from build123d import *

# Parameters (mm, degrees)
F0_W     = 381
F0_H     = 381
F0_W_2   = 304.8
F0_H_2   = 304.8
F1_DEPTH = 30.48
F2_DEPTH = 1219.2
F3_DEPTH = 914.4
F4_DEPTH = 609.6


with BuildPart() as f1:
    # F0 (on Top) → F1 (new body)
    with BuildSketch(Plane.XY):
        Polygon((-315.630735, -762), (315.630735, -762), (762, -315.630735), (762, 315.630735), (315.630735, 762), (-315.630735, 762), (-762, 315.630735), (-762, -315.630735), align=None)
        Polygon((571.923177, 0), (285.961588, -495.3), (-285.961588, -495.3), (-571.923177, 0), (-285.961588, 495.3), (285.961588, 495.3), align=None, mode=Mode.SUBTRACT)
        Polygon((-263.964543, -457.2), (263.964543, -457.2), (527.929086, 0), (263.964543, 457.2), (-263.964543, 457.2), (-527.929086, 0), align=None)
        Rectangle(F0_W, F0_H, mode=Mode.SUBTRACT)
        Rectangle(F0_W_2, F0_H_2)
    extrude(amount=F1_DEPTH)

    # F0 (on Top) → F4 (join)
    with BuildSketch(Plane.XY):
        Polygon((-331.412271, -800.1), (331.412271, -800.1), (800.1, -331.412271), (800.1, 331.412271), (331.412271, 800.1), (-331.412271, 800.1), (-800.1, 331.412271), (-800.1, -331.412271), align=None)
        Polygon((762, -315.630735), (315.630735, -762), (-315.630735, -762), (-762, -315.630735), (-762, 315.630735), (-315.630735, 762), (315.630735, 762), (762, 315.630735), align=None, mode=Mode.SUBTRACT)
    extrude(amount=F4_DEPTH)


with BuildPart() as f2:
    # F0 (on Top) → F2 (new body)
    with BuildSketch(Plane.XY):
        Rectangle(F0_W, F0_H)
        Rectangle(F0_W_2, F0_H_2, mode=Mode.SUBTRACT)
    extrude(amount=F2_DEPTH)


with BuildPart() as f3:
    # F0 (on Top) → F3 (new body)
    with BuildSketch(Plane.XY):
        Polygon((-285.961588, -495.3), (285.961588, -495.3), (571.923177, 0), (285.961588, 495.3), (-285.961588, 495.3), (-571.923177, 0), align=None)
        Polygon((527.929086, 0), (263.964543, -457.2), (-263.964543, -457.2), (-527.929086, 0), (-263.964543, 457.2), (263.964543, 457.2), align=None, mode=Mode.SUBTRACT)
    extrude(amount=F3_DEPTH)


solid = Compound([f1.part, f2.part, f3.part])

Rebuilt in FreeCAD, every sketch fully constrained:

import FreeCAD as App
import Part
import Sketcher

V = App.Vector
Q = App.Units.Quantity

doc = App.newDocument("Part")
params = doc.addObject("Spreadsheet::Sheet", "Params")
for row, (alias, value) in enumerate([
    ("sketch1_width", "15 in"),
    ("sketch1_width2", "12 in"),
    ("pad1_length", "1.2 in"),
    ("pad2_length", "24 in"),
    ("sketch3_width", "15 in"),
    ("sketch3_width2", "12 in"),
    ("pad3_length", "48 in"),
    ("pad4_length", "36 in"),
], start=1):
    params.set(f"A{row}", alias)
    params.set(f"B{row}", "=" + value)
    params.setAlias(f"B{row}", alias)

body = doc.addObject("PartDesign::Body", "Body")
body.AllowCompound = True

sketch1 = doc.addObject("Sketcher::SketchObject", "Sketch")
body.addObject(sketch1)
sketch1.AttachmentSupport = (doc.XY_Plane, [""])
sketch1.MapMode = "FlatFace"
sketch1.addGeometry(Part.LineSegment(V(-316, -762, 0), V(316, -762, 0)), False)
sketch1.addGeometry(Part.LineSegment(V(316, -762, 0), V(762, -316, 0)), False)
sketch1.addGeometry(Part.LineSegment(V(762, -316, 0), V(762, 316, 0)), False)
sketch1.addGeometry(Part.LineSegment(V(762, 316, 0), V(316, 762, 0)), False)
sketch1.addGeometry(Part.LineSegment(V(316, 762, 0), V(-316, 762, 0)), False)
sketch1.addGeometry(Part.LineSegment(V(-316, 762, 0), V(-762, 316, 0)), False)
sketch1.addGeometry(Part.LineSegment(V(-762, 316, 0), V(-762, -316, 0)), False)
sketch1.addGeometry(Part.LineSegment(V(-762, -316, 0), V(-316, -762, 0)), False)
sketch1.addGeometry(Part.LineSegment(V(286, 495, 0), V(572, 0, 0)), False)
sketch1.addGeometry(Part.LineSegment(V(572, 0, 0), V(286, -495, 0)), False)
sketch1.addGeometry(Part.LineSegment(V(286, -495, 0), V(-286, -495, 0)), False)
sketch1.addGeometry(Part.LineSegment(V(-286, -495, 0), V(-572, 0, 0)), False)
sketch1.addGeometry(Part.LineSegment(V(-572, 0, 0), V(-286, 495, 0)), False)
sketch1.addGeometry(Part.LineSegment(V(-286, 495, 0), V(286, 495, 0)), False)
sketch1.addGeometry(Part.LineSegment(V(-264, -457, 0), V(264, -457, 0)), False)
sketch1.addGeometry(Part.LineSegment(V(264, -457, 0), V(528, 0, 0)), False)
sketch1.addGeometry(Part.LineSegment(V(528, 0, 0), V(264, 457, 0)), False)
sketch1.addGeometry(Part.LineSegment(V(264, 457, 0), V(-264, 457, 0)), False)
sketch1.addGeometry(Part.LineSegment(V(-264, 457, 0), V(-528, 0, 0)), False)
sketch1.addGeometry(Part.LineSegment(V(-528, 0, 0), V(-264, -457, 0)), False)
sketch1.addGeometry(Part.LineSegment(V(190, -190, 0), V(-190, -190, 0)), False)
sketch1.addGeometry(Part.LineSegment(V(-190, -190, 0), V(-190, 190, 0)), False)
sketch1.addGeometry(Part.LineSegment(V(-190, 190, 0), V(190, 190, 0)), False)
sketch1.addGeometry(Part.LineSegment(V(190, 190, 0), V(190, -190, 0)), False)
sketch1.addGeometry(Part.LineSegment(V(-152, 152, 0), V(-152, -152, 0)), False)
sketch1.addGeometry(Part.LineSegment(V(-152, -152, 0), V(152, -152, 0)), False)
sketch1.addGeometry(Part.LineSegment(V(152, -152, 0), V(152, 152, 0)), False)
sketch1.addGeometry(Part.LineSegment(V(152, 152, 0), V(-152, 152, 0)), False)
sketch1.addConstraint(Sketcher.Constraint("Coincident", 0, 2, 1, 1))
sketch1.addConstraint(Sketcher.Constraint("Coincident", 1, 2, 2, 1))
sketch1.addConstraint(Sketcher.Constraint("Coincident", 2, 2, 3, 1))
sketch1.addConstraint(Sketcher.Constraint("Coincident", 3, 2, 4, 1))
sketch1.addConstraint(Sketcher.Constraint("Coincident", 4, 2, 5, 1))
sketch1.addConstraint(Sketcher.Constraint("Coincident", 5, 2, 6, 1))
sketch1.addConstraint(Sketcher.Constraint("Coincident", 6, 2, 7, 1))
sketch1.addConstraint(Sketcher.Constraint("Coincident", 7, 2, 0, 1))
sketch1.addConstraint(Sketcher.Constraint("Coincident", 8, 2, 9, 1))
sketch1.addConstraint(Sketcher.Constraint("Coincident", 9, 2, 10, 1))
sketch1.addConstraint(Sketcher.Constraint("Coincident", 10, 2, 11, 1))
sketch1.addConstraint(Sketcher.Constraint("Coincident", 11, 2, 12, 1))
sketch1.addConstraint(Sketcher.Constraint("Coincident", 12, 2, 13, 1))
sketch1.addConstraint(Sketcher.Constraint("Coincident", 13, 2, 8, 1))
sketch1.addConstraint(Sketcher.Constraint("Coincident", 14, 2, 15, 1))
sketch1.addConstraint(Sketcher.Constraint("Coincident", 15, 2, 16, 1))
sketch1.addConstraint(Sketcher.Constraint("Coincident", 16, 2, 17, 1))
sketch1.addConstraint(Sketcher.Constraint("Coincident", 17, 2, 18, 1))
sketch1.addConstraint(Sketcher.Constraint("Coincident", 18, 2, 19, 1))
sketch1.addConstraint(Sketcher.Constraint("Coincident", 19, 2, 14, 1))
sketch1.addConstraint(Sketcher.Constraint("Coincident", 20, 2, 21, 1))
sketch1.addConstraint(Sketcher.Constraint("Coincident", 21, 2, 22, 1))
sketch1.addConstraint(Sketcher.Constraint("Coincident", 22, 2, 23, 1))
sketch1.addConstraint(Sketcher.Constraint("Coincident", 23, 2, 20, 1))
sketch1.addConstraint(Sketcher.Constraint("Coincident", 24, 2, 25, 1))
sketch1.addConstraint(Sketcher.Constraint("Coincident", 25, 2, 26, 1))
sketch1.addConstraint(Sketcher.Constraint("Coincident", 26, 2, 27, 1))
sketch1.addConstraint(Sketcher.Constraint("Coincident", 27, 2, 24, 1))
sketch1.addConstraint(Sketcher.Constraint("Horizontal", 0))
sketch1.addConstraint(Sketcher.Constraint("Vertical", 2))
sketch1.addConstraint(Sketcher.Constraint("Horizontal", 4))
sketch1.addConstraint(Sketcher.Constraint("Vertical", 6))
sketch1.addConstraint(Sketcher.Constraint("Horizontal", 10))
sketch1.addConstraint(Sketcher.Constraint("Horizontal", 13))
sketch1.addConstraint(Sketcher.Constraint("Horizontal", 14))
sketch1.addConstraint(Sketcher.Constraint("Horizontal", 17))
sketch1.addConstraint(Sketcher.Constraint("Horizontal", 20))
sketch1.addConstraint(Sketcher.Constraint("Vertical", 21))
sketch1.addConstraint(Sketcher.Constraint("Horizontal", 22))
sketch1.addConstraint(Sketcher.Constraint("Vertical", 23))
sketch1.addConstraint(Sketcher.Constraint("Vertical", 24))
sketch1.addConstraint(Sketcher.Constraint("Horizontal", 25))
sketch1.addConstraint(Sketcher.Constraint("Vertical", 26))
sketch1.addConstraint(Sketcher.Constraint("Horizontal", 27))
sketch1.addConstraint(Sketcher.Constraint("Symmetric", 0, 2, 4, 2, -1, 1))
sketch1.addConstraint(Sketcher.Constraint("Symmetric", 1, 2, 5, 2, -1, 1))
sketch1.addConstraint(Sketcher.Constraint("Symmetric", 8, 2, 11, 2, -1, 1))
sketch1.addConstraint(Sketcher.Constraint("Symmetric", 9, 2, 12, 2, -1, 1))
sketch1.addConstraint(Sketcher.Constraint("Symmetric", 14, 2, 17, 2, -1, 1))
sketch1.addConstraint(Sketcher.Constraint("Symmetric", 15, 2, 18, 2, -1, 1))
sketch1.addConstraint(Sketcher.Constraint("Symmetric", 20, 2, 22, 2, -1, 1))
sketch1.addConstraint(Sketcher.Constraint("Symmetric", 24, 2, 26, 2, -1, 1))
sketch1.addConstraint(Sketcher.Constraint("PointOnObject", 8, 2, -1))
sketch1.addConstraint(Sketcher.Constraint("PointOnObject", 15, 2, -1))
sketch1.addConstraint(Sketcher.Constraint("Perpendicular", 1, 3))
sketch1.addConstraint(Sketcher.Constraint("Perpendicular", 5, 7))
sketch1.addConstraint(Sketcher.Constraint("Parallel", 8, 11))
sketch1.addConstraint(Sketcher.Constraint("Parallel", 12, 15))
sketch1.addConstraint(Sketcher.Constraint("Parallel", 11, 16))
sketch1.addConstraint(Sketcher.Constraint("Parallel", 16, 19))
sketch1.addConstraint(Sketcher.Constraint("Horizontal", 2, 2, 5, 2))
sketch1.addConstraint(Sketcher.Constraint("Horizontal", 1, 2, 6, 2))
sketch1.addConstraint(Sketcher.Constraint("Vertical", 0, 2, 3, 2))
sketch1.addConstraint(Sketcher.Constraint("Vertical", 10, 2, 12, 2))
sketch1.addConstraint(Sketcher.Constraint("Equal", 4, 2))
sketch1.addConstraint(Sketcher.Constraint("Equal", 22, 21))
sketch1.addConstraint(Sketcher.Constraint("Equal", 27, 24))
sketch1.addConstraint(Sketcher.Constraint("DistanceX", 20, 2, 20, 1, Q("15 in")))
sketch1.addConstraint(Sketcher.Constraint("DistanceX", 25, 1, 25, 2, Q("12 in")))
sketch1.addConstraint(Sketcher.Constraint("DistanceY", 0, 2, -1, 1, Q("30 in")))
sketch1.addConstraint(Sketcher.Constraint("DistanceY", 14, 2, -1, 1, Q("18 in")))
sketch1.addConstraint(Sketcher.Constraint("Angle", 8, Q("-60 deg")))
sketch1.addConstraint(Sketcher.Constraint("DistanceY", 10, 2, 20, 2, Q("12 in")))
sketch1.addConstraint(Sketcher.Constraint("DistanceX", 0, 1, 0, 2, 631.26147))
sketch1.addConstraint(Sketcher.Constraint("DistanceX", 10, 2, 10, 1, 571.923176))
sketch1.addConstraint(Sketcher.Constraint("DistanceX", 14, 1, 14, 2, 527.929086))
sketch1.setExpression("Constraints[67]", "Params.sketch1_width")
sketch1.setExpression("Constraints[68]", "Params.sketch1_width2")
pad1 = doc.addObject("PartDesign::Pad", "Pad")
body.addObject(pad1)
pad1.Profile = sketch1
pad1.setExpression("Length", "Params.pad1_length")

sketch2 = doc.addObject("Sketcher::SketchObject", "Sketch001")
body.addObject(sketch2)
sketch2.AttachmentSupport = (doc.XY_Plane, [""])
sketch2.MapMode = "FlatFace"
sketch2.addGeometry(Part.LineSegment(V(-331, -800, 0), V(331, -800, 0)), False)
sketch2.addGeometry(Part.LineSegment(V(331, -800, 0), V(800, -331, 0)), False)
sketch2.addGeometry(Part.LineSegment(V(800, -331, 0), V(800, 331, 0)), False)
sketch2.addGeometry(Part.LineSegment(V(800, 331, 0), V(331, 800, 0)), False)
sketch2.addGeometry(Part.LineSegment(V(331, 800, 0), V(-331, 800, 0)), False)
sketch2.addGeometry(Part.LineSegment(V(-331, 800, 0), V(-800, 331, 0)), False)
sketch2.addGeometry(Part.LineSegment(V(-800, 331, 0), V(-800, -331, 0)), False)
sketch2.addGeometry(Part.LineSegment(V(-800, -331, 0), V(-331, -800, 0)), False)
sketch2.addGeometry(Part.LineSegment(V(762, 316, 0), V(762, -316, 0)), False)
sketch2.addGeometry(Part.LineSegment(V(762, -316, 0), V(316, -762, 0)), False)
sketch2.addGeometry(Part.LineSegment(V(316, -762, 0), V(-316, -762, 0)), False)
sketch2.addGeometry(Part.LineSegment(V(-316, -762, 0), V(-762, -316, 0)), False)
sketch2.addGeometry(Part.LineSegment(V(-762, -316, 0), V(-762, 316, 0)), False)
sketch2.addGeometry(Part.LineSegment(V(-762, 316, 0), V(-316, 762, 0)), False)
sketch2.addGeometry(Part.LineSegment(V(-316, 762, 0), V(316, 762, 0)), False)
sketch2.addGeometry(Part.LineSegment(V(316, 762, 0), V(762, 316, 0)), False)
sketch2.addConstraint(Sketcher.Constraint("Coincident", 0, 2, 1, 1))
sketch2.addConstraint(Sketcher.Constraint("Coincident", 1, 2, 2, 1))
sketch2.addConstraint(Sketcher.Constraint("Coincident", 2, 2, 3, 1))
sketch2.addConstraint(Sketcher.Constraint("Coincident", 3, 2, 4, 1))
sketch2.addConstraint(Sketcher.Constraint("Coincident", 4, 2, 5, 1))
sketch2.addConstraint(Sketcher.Constraint("Coincident", 5, 2, 6, 1))
sketch2.addConstraint(Sketcher.Constraint("Coincident", 6, 2, 7, 1))
sketch2.addConstraint(Sketcher.Constraint("Coincident", 7, 2, 0, 1))
sketch2.addConstraint(Sketcher.Constraint("Coincident", 8, 2, 9, 1))
sketch2.addConstraint(Sketcher.Constraint("Coincident", 9, 2, 10, 1))
sketch2.addConstraint(Sketcher.Constraint("Coincident", 10, 2, 11, 1))
sketch2.addConstraint(Sketcher.Constraint("Coincident", 11, 2, 12, 1))
sketch2.addConstraint(Sketcher.Constraint("Coincident", 12, 2, 13, 1))
sketch2.addConstraint(Sketcher.Constraint("Coincident", 13, 2, 14, 1))
sketch2.addConstraint(Sketcher.Constraint("Coincident", 14, 2, 15, 1))
sketch2.addConstraint(Sketcher.Constraint("Coincident", 15, 2, 8, 1))
sketch2.addConstraint(Sketcher.Constraint("Horizontal", 0))
sketch2.addConstraint(Sketcher.Constraint("Vertical", 2))
sketch2.addConstraint(Sketcher.Constraint("Horizontal", 4))
sketch2.addConstraint(Sketcher.Constraint("Vertical", 6))
sketch2.addConstraint(Sketcher.Constraint("Vertical", 8))
sketch2.addConstraint(Sketcher.Constraint("Horizontal", 10))
sketch2.addConstraint(Sketcher.Constraint("Vertical", 12))
sketch2.addConstraint(Sketcher.Constraint("Horizontal", 14))
sketch2.addConstraint(Sketcher.Constraint("Symmetric", 0, 2, 4, 2, -1, 1))
sketch2.addConstraint(Sketcher.Constraint("Symmetric", 1, 2, 5, 2, -1, 1))
sketch2.addConstraint(Sketcher.Constraint("Symmetric", 8, 2, 12, 2, -1, 1))
sketch2.addConstraint(Sketcher.Constraint("Symmetric", 9, 2, 13, 2, -1, 1))
sketch2.addConstraint(Sketcher.Constraint("Perpendicular", 1, 3))
sketch2.addConstraint(Sketcher.Constraint("Perpendicular", 5, 7))
sketch2.addConstraint(Sketcher.Constraint("Perpendicular", 7, 9))
sketch2.addConstraint(Sketcher.Constraint("Perpendicular", 9, 11))
sketch2.addConstraint(Sketcher.Constraint("Perpendicular", 13, 15))
sketch2.addConstraint(Sketcher.Constraint("Horizontal", 2, 2, 5, 2))
sketch2.addConstraint(Sketcher.Constraint("Horizontal", 1, 2, 6, 2))
sketch2.addConstraint(Sketcher.Constraint("Horizontal", 8, 2, 11, 2))
sketch2.addConstraint(Sketcher.Constraint("Horizontal", 12, 2, 15, 2))
sketch2.addConstraint(Sketcher.Constraint("Vertical", 0, 2, 3, 2))
sketch2.addConstraint(Sketcher.Constraint("Equal", 4, 2))
sketch2.addConstraint(Sketcher.Constraint("Equal", 14, 8))
sketch2.addConstraint(Sketcher.Constraint("DistanceX", -1, 1, 8, 2, Q("30 in")))
sketch2.addConstraint(Sketcher.Constraint("DistanceY", 0, 2, 3, 2, Q("63 in")))
sketch2.addConstraint(Sketcher.Constraint("DistanceX", 0, 1, 0, 2, 662.824542))
sketch2.addConstraint(Sketcher.Constraint("DistanceX", 10, 2, 10, 1, 631.26147))
pad2 = doc.addObject("PartDesign::Pad", "Pad001")
body.addObject(pad2)
pad2.Profile = sketch2
pad2.setExpression("Length", "Params.pad2_length")
body2 = doc.addObject("PartDesign::Body", "Body001")

sketch3 = doc.addObject("Sketcher::SketchObject", "Sketch002")
body2.addObject(sketch3)
sketch3.AttachmentSupport = (doc.getObject("XY_Plane001"), [""])
sketch3.MapMode = "FlatFace"
sketch3.addGeometry(Part.LineSegment(V(-190, 190, 0), V(-190, -190, 0)), False)
sketch3.addGeometry(Part.LineSegment(V(-190, -190, 0), V(190, -190, 0)), False)
sketch3.addGeometry(Part.LineSegment(V(190, -190, 0), V(190, 190, 0)), False)
sketch3.addGeometry(Part.LineSegment(V(190, 190, 0), V(-190, 190, 0)), False)
sketch3.addGeometry(Part.LineSegment(V(152, -152, 0), V(-152, -152, 0)), False)
sketch3.addGeometry(Part.LineSegment(V(-152, -152, 0), V(-152, 152, 0)), False)
sketch3.addGeometry(Part.LineSegment(V(-152, 152, 0), V(152, 152, 0)), False)
sketch3.addGeometry(Part.LineSegment(V(152, 152, 0), V(152, -152, 0)), False)
sketch3.addConstraint(Sketcher.Constraint("Coincident", 0, 2, 1, 1))
sketch3.addConstraint(Sketcher.Constraint("Coincident", 1, 2, 2, 1))
sketch3.addConstraint(Sketcher.Constraint("Coincident", 2, 2, 3, 1))
sketch3.addConstraint(Sketcher.Constraint("Coincident", 3, 2, 0, 1))
sketch3.addConstraint(Sketcher.Constraint("Coincident", 4, 2, 5, 1))
sketch3.addConstraint(Sketcher.Constraint("Coincident", 5, 2, 6, 1))
sketch3.addConstraint(Sketcher.Constraint("Coincident", 6, 2, 7, 1))
sketch3.addConstraint(Sketcher.Constraint("Coincident", 7, 2, 4, 1))
sketch3.addConstraint(Sketcher.Constraint("Vertical", 0))
sketch3.addConstraint(Sketcher.Constraint("Horizontal", 1))
sketch3.addConstraint(Sketcher.Constraint("Vertical", 2))
sketch3.addConstraint(Sketcher.Constraint("Horizontal", 3))
sketch3.addConstraint(Sketcher.Constraint("Horizontal", 4))
sketch3.addConstraint(Sketcher.Constraint("Vertical", 5))
sketch3.addConstraint(Sketcher.Constraint("Horizontal", 6))
sketch3.addConstraint(Sketcher.Constraint("Vertical", 7))
sketch3.addConstraint(Sketcher.Constraint("Symmetric", 0, 2, 2, 2, -1, 1))
sketch3.addConstraint(Sketcher.Constraint("Symmetric", 4, 2, 6, 2, -1, 1))
sketch3.addConstraint(Sketcher.Constraint("Equal", 3, 0))
sketch3.addConstraint(Sketcher.Constraint("Equal", 6, 5))
sketch3.addConstraint(Sketcher.Constraint("DistanceX", 1, 1, 1, 2, Q("15 in")))
sketch3.addConstraint(Sketcher.Constraint("DistanceX", 4, 2, 4, 1, Q("12 in")))
sketch3.setExpression("Constraints[20]", "Params.sketch3_width")
sketch3.setExpression("Constraints[21]", "Params.sketch3_width2")
pad3 = doc.addObject("PartDesign::Pad", "Pad002")
body2.addObject(pad3)
pad3.Profile = sketch3
pad3.setExpression("Length", "Params.pad3_length")
body3 = doc.addObject("PartDesign::Body", "Body002")

sketch4 = doc.addObject("Sketcher::SketchObject", "Sketch003")
body3.addObject(sketch4)
sketch4.AttachmentSupport = (doc.getObject("XY_Plane002"), [""])
sketch4.MapMode = "FlatFace"
sketch4.addGeometry(Part.LineSegment(V(-286, -495, 0), V(286, -495, 0)), False)
sketch4.addGeometry(Part.LineSegment(V(286, -495, 0), V(572, 0, 0)), False)
sketch4.addGeometry(Part.LineSegment(V(572, 0, 0), V(286, 495, 0)), False)
sketch4.addGeometry(Part.LineSegment(V(286, 495, 0), V(-286, 495, 0)), False)
sketch4.addGeometry(Part.LineSegment(V(-286, 495, 0), V(-572, 0, 0)), False)
sketch4.addGeometry(Part.LineSegment(V(-572, 0, 0), V(-286, -495, 0)), False)
sketch4.addGeometry(Part.LineSegment(V(264, 457, 0), V(528, 0, 0)), False)
sketch4.addGeometry(Part.LineSegment(V(528, 0, 0), V(264, -457, 0)), False)
sketch4.addGeometry(Part.LineSegment(V(264, -457, 0), V(-264, -457, 0)), False)
sketch4.addGeometry(Part.LineSegment(V(-264, -457, 0), V(-528, 0, 0)), False)
sketch4.addGeometry(Part.LineSegment(V(-528, 0, 0), V(-264, 457, 0)), False)
sketch4.addGeometry(Part.LineSegment(V(-264, 457, 0), V(264, 457, 0)), False)
sketch4.addConstraint(Sketcher.Constraint("Coincident", 0, 2, 1, 1))
sketch4.addConstraint(Sketcher.Constraint("Coincident", 1, 2, 2, 1))
sketch4.addConstraint(Sketcher.Constraint("Coincident", 2, 2, 3, 1))
sketch4.addConstraint(Sketcher.Constraint("Coincident", 3, 2, 4, 1))
sketch4.addConstraint(Sketcher.Constraint("Coincident", 4, 2, 5, 1))
sketch4.addConstraint(Sketcher.Constraint("Coincident", 5, 2, 0, 1))
sketch4.addConstraint(Sketcher.Constraint("Coincident", 6, 2, 7, 1))
sketch4.addConstraint(Sketcher.Constraint("Coincident", 7, 2, 8, 1))
sketch4.addConstraint(Sketcher.Constraint("Coincident", 8, 2, 9, 1))
sketch4.addConstraint(Sketcher.Constraint("Coincident", 9, 2, 10, 1))
sketch4.addConstraint(Sketcher.Constraint("Coincident", 10, 2, 11, 1))
sketch4.addConstraint(Sketcher.Constraint("Coincident", 11, 2, 6, 1))
sketch4.addConstraint(Sketcher.Constraint("Horizontal", 0))
sketch4.addConstraint(Sketcher.Constraint("Horizontal", 3))
sketch4.addConstraint(Sketcher.Constraint("Horizontal", 8))
sketch4.addConstraint(Sketcher.Constraint("Horizontal", 11))
sketch4.addConstraint(Sketcher.Constraint("Symmetric", 0, 2, 3, 2, -1, 1))
sketch4.addConstraint(Sketcher.Constraint("Symmetric", 1, 2, 4, 2, -1, 1))
sketch4.addConstraint(Sketcher.Constraint("Symmetric", 6, 2, 9, 2, -1, 1))
sketch4.addConstraint(Sketcher.Constraint("Symmetric", 7, 2, 10, 2, -1, 1))
sketch4.addConstraint(Sketcher.Constraint("PointOnObject", 1, 2, -1))
sketch4.addConstraint(Sketcher.Constraint("PointOnObject", 6, 2, -1))
sketch4.addConstraint(Sketcher.Constraint("Parallel", 2, 5))
sketch4.addConstraint(Sketcher.Constraint("Parallel", 5, 6))
sketch4.addConstraint(Sketcher.Constraint("Parallel", 4, 7))
sketch4.addConstraint(Sketcher.Constraint("Parallel", 6, 9))
sketch4.addConstraint(Sketcher.Constraint("Vertical", 0, 2, 2, 2))
sketch4.addConstraint(Sketcher.Constraint("DistanceY", 7, 2, -1, 1, Q("18 in")))
sketch4.addConstraint(Sketcher.Constraint("Angle", 1, Q("60 deg")))
sketch4.addConstraint(Sketcher.Constraint("DistanceY", 0, 2, 2, 2, Q("39 in")))
sketch4.addConstraint(Sketcher.Constraint("DistanceX", 0, 1, 0, 2, 571.923176))
sketch4.addConstraint(Sketcher.Constraint("DistanceX", 8, 2, 8, 1, 527.929086))
pad4 = doc.addObject("PartDesign::Pad", "Pad003")
body3.addObject(pad4)
pad4.Profile = sketch4
pad4.setExpression("Length", "Params.pad4_length")

doc.recompute()
